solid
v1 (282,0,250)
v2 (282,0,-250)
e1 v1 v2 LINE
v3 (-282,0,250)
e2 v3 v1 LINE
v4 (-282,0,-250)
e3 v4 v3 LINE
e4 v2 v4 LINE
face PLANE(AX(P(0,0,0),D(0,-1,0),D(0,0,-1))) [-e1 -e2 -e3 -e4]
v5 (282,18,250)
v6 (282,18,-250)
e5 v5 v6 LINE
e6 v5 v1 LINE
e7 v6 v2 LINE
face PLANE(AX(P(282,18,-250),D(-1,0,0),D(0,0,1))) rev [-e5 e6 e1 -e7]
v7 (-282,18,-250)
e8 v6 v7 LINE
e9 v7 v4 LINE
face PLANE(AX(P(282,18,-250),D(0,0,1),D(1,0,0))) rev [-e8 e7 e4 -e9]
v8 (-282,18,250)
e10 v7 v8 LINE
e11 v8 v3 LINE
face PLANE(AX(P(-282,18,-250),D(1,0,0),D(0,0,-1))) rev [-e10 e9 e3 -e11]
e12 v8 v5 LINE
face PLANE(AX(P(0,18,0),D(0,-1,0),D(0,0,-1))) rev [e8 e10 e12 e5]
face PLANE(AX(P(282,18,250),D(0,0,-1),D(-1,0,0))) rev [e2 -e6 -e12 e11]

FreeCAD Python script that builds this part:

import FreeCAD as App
import Part
import Sketcher
from FreeCAD import Vector


def add_polygon(sketch, points):
    """Adds a closed chain of lines whose ends are joined by coincident constraints."""
    first, n = sketch.GeometryCount, len(points)
    for a, b in zip(points, points[1:] + points[:1]):
        sketch.addGeometry(Part.LineSegment(App.Vector(*a, 0), App.Vector(*b, 0)), False)
    for i in range(n):
        sketch.addConstraint(Sketcher.Constraint("Coincident", first + i, 2, first + (i + 1) % n, 1))

doc = App.newDocument("Part")
params = doc.addObject("Spreadsheet::Sheet", "Params")
for row, (alias, value) in enumerate([
    ("sketch1_width", "564 mm"),
    ("sketch1_height", "500 mm"),
    ("pad1_length", "18 mm"),
], start=1):
    params.set(f"A{row}", alias)
    params.set(f"B{row}", "=" + value)
    params.setAlias(f"B{row}", alias)

body = doc.addObject("PartDesign::Body", "Body")

# Sketch on XZ plane
sketch1 = body.newObject("Sketcher::SketchObject", "Sketch")
sketch1.AttachmentSupport = (doc.getObject("XZ_Plane"), [""])
sketch1.MapMode = "FlatFace"
add_polygon(sketch1, [(-282, -250), (-282, 250), (282, 250), (282, -250)])  # lines 0-3
sketch1.addConstraint([
    Sketcher.Constraint("Vertical", 0),
    Sketcher.Constraint("Horizontal", 1),
    Sketcher.Constraint("Vertical", 2),
    Sketcher.Constraint("Horizontal", 3),
    Sketcher.Constraint("Symmetric", 0, 2, 2, 2, -1, 1),
    Sketcher.Constraint("DistanceX", 1, 1, 1, 2, 564.0),
    Sketcher.Constraint("DistanceY", 0, 1, 0, 2, 500.0),
])
sketch1.setExpression("Constraints[9]", "Params.sketch1_width")
sketch1.setExpression("Constraints[10]", "Params.sketch1_height")
pad1 = body.newObject("PartDesign::Pad", "Pad")
pad1.Profile = sketch1
pad1.setExpression("Length", "Params.pad1_length")
pad1.Reversed = True

doc.recompute()
